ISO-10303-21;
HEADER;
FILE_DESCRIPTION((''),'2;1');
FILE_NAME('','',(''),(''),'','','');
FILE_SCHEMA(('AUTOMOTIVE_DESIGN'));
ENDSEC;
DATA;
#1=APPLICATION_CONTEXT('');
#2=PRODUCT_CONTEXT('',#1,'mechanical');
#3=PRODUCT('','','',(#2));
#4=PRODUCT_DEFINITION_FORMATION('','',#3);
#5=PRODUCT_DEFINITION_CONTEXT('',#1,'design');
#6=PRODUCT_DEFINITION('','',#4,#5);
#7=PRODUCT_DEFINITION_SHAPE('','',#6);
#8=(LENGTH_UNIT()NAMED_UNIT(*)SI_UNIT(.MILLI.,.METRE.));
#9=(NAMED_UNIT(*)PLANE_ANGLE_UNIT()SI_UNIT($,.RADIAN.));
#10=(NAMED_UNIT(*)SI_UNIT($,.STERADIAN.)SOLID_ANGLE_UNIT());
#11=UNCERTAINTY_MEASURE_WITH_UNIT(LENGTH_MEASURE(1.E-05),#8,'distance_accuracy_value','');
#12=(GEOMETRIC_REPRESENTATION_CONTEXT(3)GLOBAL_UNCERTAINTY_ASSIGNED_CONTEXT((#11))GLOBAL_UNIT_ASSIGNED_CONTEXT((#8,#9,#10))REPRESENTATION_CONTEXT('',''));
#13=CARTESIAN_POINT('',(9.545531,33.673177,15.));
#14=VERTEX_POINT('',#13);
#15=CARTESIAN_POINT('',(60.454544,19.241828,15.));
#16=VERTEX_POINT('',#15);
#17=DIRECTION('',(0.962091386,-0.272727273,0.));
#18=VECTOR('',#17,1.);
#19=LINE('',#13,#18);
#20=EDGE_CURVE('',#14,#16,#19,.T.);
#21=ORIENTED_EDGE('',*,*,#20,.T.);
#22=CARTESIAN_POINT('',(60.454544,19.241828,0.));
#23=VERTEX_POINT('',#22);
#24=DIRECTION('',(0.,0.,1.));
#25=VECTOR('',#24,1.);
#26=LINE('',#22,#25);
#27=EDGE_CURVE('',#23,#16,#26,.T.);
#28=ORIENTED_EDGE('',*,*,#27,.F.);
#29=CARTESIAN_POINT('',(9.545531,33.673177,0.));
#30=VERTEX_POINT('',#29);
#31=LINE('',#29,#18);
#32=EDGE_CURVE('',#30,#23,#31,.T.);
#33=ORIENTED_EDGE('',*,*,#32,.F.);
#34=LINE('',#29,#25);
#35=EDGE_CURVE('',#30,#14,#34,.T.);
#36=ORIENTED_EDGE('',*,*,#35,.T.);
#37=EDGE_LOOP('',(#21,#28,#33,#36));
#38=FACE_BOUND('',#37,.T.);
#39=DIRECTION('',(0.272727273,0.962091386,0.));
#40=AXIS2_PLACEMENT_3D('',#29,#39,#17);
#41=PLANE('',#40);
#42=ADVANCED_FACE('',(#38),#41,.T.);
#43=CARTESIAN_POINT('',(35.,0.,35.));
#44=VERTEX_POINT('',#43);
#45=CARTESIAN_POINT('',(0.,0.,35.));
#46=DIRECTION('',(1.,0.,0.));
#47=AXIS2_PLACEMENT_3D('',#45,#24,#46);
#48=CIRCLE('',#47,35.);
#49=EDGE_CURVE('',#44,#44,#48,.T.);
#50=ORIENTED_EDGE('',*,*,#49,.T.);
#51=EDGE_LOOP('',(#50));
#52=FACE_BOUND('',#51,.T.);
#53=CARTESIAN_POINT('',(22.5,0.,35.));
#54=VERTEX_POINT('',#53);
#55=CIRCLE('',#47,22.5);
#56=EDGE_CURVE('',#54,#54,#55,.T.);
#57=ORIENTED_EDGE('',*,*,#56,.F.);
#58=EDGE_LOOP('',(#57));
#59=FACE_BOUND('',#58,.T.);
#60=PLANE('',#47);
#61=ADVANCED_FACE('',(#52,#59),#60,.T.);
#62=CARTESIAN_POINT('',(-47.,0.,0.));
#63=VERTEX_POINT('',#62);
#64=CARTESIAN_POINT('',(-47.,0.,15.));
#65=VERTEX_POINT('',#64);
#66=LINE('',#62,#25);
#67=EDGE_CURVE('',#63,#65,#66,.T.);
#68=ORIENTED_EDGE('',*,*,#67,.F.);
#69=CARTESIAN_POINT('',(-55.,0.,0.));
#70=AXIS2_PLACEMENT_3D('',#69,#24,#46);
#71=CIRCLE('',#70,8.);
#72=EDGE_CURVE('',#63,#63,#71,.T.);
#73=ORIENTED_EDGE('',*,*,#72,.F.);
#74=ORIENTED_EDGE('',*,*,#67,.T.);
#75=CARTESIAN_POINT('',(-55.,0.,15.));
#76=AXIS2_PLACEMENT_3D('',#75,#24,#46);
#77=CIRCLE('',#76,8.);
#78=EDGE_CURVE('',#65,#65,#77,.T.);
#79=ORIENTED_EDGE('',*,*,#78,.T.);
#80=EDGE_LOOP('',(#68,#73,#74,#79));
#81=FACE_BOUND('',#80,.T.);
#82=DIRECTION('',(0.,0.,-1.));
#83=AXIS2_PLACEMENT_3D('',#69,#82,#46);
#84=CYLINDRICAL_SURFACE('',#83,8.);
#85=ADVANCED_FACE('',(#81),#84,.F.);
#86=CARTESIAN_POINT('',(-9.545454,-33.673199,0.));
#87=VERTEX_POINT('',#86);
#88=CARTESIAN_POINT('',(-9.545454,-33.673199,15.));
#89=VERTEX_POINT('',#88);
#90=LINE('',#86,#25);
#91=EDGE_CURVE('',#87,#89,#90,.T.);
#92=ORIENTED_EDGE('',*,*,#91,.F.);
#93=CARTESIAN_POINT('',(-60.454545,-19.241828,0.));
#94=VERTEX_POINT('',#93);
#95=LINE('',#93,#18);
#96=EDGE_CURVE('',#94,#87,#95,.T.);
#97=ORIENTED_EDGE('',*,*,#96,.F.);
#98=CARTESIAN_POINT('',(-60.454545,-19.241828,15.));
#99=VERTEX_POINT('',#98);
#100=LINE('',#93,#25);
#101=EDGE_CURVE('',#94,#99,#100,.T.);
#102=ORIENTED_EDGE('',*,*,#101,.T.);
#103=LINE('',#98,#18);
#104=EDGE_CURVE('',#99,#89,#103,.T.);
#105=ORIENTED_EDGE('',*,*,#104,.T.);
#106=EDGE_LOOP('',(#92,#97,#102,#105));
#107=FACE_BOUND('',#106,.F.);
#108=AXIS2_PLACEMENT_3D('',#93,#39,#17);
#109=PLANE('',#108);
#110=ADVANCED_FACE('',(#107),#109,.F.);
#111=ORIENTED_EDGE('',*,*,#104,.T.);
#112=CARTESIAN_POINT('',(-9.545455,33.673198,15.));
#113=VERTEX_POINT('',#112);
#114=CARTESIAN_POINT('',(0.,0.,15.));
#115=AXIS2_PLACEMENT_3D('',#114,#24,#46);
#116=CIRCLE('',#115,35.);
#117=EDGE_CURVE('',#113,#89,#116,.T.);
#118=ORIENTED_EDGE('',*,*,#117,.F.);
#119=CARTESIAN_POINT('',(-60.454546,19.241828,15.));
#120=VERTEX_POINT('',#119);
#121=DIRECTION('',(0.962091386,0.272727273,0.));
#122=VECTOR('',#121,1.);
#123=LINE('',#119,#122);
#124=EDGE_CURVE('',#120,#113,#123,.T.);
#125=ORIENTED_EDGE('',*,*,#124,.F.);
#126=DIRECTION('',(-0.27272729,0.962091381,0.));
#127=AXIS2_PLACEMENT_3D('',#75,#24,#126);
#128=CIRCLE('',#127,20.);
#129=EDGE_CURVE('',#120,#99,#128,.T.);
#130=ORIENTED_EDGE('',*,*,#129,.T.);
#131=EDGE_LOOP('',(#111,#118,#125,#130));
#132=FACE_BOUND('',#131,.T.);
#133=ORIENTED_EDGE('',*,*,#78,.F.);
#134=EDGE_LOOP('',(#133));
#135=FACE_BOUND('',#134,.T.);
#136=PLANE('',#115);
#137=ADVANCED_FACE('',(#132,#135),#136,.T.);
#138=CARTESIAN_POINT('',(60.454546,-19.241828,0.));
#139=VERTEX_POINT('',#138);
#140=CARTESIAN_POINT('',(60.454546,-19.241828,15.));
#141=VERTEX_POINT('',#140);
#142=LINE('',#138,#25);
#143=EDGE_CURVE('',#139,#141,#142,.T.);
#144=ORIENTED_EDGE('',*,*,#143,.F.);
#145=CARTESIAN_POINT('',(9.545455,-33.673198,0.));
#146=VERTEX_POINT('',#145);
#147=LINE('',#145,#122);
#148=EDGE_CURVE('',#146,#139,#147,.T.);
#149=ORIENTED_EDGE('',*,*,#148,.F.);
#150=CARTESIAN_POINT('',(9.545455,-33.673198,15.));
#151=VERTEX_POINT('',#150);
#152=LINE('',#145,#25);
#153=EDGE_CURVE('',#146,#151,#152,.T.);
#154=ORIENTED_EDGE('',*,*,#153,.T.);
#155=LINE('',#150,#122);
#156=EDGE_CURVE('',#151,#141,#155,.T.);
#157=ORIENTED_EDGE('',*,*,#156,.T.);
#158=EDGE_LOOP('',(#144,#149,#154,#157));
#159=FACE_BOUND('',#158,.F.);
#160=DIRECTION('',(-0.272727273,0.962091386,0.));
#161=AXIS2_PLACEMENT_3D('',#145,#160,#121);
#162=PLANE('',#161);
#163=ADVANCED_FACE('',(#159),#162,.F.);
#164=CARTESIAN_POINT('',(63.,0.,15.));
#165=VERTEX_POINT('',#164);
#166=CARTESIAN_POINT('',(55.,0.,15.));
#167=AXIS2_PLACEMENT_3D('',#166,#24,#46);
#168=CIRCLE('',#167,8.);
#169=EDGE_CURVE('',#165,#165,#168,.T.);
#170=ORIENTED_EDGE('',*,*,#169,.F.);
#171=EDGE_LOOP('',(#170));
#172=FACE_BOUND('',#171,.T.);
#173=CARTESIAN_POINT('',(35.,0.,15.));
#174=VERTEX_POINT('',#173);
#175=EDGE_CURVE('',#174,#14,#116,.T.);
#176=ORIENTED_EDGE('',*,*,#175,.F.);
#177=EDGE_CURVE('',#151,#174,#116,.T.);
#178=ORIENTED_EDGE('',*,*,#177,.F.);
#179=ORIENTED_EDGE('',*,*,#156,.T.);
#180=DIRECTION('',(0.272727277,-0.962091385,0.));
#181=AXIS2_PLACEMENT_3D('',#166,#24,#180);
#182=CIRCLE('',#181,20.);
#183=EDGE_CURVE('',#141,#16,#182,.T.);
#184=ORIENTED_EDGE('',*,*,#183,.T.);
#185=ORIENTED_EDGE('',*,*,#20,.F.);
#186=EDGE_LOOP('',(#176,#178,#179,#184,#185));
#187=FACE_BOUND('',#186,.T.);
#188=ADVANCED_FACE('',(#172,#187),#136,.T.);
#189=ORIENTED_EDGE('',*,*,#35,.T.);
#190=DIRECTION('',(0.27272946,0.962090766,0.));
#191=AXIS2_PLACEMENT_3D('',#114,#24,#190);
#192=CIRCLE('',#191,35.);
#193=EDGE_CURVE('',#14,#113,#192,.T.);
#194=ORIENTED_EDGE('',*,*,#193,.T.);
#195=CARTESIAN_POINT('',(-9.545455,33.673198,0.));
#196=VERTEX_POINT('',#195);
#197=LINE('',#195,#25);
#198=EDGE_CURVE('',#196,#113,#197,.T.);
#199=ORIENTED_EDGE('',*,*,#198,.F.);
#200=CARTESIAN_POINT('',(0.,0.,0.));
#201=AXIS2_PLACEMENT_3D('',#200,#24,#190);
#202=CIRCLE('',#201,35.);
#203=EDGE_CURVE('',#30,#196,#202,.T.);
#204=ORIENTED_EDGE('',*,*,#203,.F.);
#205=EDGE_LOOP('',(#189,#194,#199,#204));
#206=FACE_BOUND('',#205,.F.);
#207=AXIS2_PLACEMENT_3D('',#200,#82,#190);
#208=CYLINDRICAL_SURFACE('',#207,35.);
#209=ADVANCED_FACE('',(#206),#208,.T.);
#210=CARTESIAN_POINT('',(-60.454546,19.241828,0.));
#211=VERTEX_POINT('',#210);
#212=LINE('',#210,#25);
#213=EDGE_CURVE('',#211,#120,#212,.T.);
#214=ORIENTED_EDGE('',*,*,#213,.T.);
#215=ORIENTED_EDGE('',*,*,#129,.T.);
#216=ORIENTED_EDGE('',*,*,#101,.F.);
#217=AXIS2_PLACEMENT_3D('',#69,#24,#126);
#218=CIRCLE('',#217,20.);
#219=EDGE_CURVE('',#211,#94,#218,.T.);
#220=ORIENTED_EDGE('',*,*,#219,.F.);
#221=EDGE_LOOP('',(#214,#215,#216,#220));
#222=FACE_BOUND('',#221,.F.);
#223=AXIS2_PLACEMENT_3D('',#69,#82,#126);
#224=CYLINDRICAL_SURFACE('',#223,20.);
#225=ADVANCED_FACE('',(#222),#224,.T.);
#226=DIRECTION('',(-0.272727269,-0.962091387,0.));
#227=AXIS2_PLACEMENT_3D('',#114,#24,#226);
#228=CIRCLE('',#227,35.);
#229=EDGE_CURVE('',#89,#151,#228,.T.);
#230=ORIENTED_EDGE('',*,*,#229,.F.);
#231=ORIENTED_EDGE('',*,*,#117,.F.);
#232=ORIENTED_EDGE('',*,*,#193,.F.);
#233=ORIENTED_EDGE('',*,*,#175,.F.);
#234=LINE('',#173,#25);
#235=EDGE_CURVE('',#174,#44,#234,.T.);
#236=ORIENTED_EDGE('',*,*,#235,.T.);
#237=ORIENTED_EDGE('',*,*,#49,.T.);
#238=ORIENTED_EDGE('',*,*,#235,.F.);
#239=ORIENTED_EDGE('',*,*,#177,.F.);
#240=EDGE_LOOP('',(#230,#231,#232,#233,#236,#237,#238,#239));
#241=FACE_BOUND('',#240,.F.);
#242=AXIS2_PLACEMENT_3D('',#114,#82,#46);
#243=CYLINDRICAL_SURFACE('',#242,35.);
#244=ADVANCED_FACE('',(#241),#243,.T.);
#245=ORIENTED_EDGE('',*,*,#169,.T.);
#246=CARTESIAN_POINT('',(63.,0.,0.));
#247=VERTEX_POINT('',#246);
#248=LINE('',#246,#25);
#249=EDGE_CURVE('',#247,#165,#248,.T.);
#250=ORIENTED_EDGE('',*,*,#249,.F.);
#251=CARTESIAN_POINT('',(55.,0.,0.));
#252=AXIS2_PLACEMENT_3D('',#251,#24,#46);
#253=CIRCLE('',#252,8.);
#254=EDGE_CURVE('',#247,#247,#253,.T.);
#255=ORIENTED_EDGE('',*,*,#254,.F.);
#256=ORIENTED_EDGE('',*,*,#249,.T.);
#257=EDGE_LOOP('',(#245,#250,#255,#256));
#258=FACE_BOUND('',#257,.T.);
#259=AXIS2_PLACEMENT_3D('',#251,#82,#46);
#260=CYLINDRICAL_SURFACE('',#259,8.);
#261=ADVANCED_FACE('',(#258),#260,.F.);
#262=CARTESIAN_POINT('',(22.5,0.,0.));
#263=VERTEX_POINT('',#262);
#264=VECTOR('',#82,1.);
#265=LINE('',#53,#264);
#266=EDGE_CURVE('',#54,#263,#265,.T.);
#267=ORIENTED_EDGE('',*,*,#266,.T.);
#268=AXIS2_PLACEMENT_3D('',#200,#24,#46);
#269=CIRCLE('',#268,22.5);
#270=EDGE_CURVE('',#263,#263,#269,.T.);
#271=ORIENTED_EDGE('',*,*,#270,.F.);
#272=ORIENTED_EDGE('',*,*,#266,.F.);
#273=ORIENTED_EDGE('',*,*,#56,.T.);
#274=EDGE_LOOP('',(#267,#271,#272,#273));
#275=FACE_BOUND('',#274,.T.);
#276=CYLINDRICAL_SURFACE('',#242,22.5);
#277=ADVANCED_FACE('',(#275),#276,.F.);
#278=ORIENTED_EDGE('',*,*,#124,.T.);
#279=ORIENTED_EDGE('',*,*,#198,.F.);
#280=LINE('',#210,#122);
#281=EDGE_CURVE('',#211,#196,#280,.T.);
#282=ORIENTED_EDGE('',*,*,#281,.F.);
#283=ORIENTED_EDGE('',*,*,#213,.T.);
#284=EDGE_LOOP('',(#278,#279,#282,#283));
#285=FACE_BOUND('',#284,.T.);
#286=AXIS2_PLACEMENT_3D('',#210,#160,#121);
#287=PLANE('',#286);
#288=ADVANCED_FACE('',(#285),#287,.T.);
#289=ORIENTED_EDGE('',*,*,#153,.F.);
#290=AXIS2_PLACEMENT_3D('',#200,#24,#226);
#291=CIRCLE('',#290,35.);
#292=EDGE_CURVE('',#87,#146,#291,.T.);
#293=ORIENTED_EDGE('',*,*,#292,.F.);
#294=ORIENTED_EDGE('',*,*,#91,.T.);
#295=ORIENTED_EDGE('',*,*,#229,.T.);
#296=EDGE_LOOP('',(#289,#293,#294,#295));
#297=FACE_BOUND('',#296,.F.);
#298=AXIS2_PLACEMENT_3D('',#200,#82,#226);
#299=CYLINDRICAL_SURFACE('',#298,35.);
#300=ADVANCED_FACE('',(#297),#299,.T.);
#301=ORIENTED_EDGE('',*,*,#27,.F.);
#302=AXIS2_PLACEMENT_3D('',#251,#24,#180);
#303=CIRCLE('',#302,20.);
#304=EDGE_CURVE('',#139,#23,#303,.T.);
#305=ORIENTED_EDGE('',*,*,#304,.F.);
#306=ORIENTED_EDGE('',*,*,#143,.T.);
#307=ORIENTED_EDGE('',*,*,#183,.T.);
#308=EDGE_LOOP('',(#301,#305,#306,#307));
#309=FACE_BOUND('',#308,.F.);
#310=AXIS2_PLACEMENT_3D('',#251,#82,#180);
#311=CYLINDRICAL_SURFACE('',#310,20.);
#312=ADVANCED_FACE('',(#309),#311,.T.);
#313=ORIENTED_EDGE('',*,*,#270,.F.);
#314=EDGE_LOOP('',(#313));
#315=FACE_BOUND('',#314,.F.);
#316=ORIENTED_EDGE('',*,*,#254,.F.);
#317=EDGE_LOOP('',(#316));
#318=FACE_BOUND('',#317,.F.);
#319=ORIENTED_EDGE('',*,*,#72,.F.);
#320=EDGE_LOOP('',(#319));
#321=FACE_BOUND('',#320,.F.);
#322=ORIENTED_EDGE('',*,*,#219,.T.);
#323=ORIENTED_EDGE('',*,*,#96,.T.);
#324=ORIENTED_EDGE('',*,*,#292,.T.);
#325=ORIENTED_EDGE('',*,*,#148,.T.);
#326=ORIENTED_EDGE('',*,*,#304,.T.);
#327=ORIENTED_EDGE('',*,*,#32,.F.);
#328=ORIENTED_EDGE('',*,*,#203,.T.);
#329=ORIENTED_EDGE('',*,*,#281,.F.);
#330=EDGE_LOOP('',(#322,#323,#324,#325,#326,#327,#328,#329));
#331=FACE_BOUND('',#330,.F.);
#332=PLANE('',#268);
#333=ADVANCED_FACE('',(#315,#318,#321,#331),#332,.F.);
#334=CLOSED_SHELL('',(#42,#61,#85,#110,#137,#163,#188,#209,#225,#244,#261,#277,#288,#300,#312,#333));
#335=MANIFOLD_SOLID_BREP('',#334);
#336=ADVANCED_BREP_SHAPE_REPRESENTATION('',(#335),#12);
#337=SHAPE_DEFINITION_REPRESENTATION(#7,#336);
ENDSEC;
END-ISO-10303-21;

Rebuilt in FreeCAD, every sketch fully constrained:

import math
import FreeCAD as App
import Part
import Sketcher
from FreeCAD import Vector

doc = App.newDocument("Part")
params = doc.addObject("Spreadsheet::Sheet", "Params")
for row, (alias, value) in enumerate([
    ("sketch1_diameter", "16 mm"),
    ("sketch1_diameter2", "45 mm"),
    ("sketch1_radius", "35 mm"),
    ("sketch1_radius2", "20 mm"),
    ("pad1_length", "15 mm"),
    ("sketch2_diameter", "70 mm"),
    ("sketch2_diameter2", "45 mm"),
    ("pad2_length", "20 mm"),
], start=1):
    params.set(f"A{row}", alias)
    params.set(f"B{row}", "=" + value)
    params.setAlias(f"B{row}", alias)

body = doc.addObject("PartDesign::Body", "Body")

# Sketch on XY plane
sketch1 = body.newObject("Sketcher::SketchObject", "Sketch")
sketch1.AttachmentSupport = (doc.getObject("XY_Plane"), [""])
sketch1.MapMode = "FlatFace"
sketch1.addGeometry(Part.ArcOfCircle(Part.Circle(Vector(0, 0, 0), Vector(0, 0, 1), 35), math.radians(74), math.radians(106)), False)
sketch1.addGeometry(Part.LineSegment(Vector(-10, 34, 0), Vector(-60, 19, 0)), False)
sketch1.addGeometry(Part.ArcOfCircle(Part.Circle(Vector(-55, 0, 0), Vector(0, 0, 1), 20), math.radians(106), math.radians(254)), False)
sketch1.addGeometry(Part.LineSegment(Vector(-60, -19, 0), Vector(-10, -34, 0)), False)
sketch1.addGeometry(Part.ArcOfCircle(Part.Circle(Vector(0, 0, 0), Vector(0, 0, 1), 35), math.radians(-106), math.radians(-74)), False)
sketch1.addGeometry(Part.LineSegment(Vector(10, -34, 0), Vector(60, -19, 0)), False)
sketch1.addGeometry(Part.ArcOfCircle(Part.Circle(Vector(55, 0, 0), Vector(0, 0, 1), 20), math.radians(-74), math.radians(74)), False)
sketch1.addGeometry(Part.LineSegment(Vector(60, 19, 0), Vector(10, 34, 0)), False)
sketch1.addGeometry(Part.Circle(Vector(-55, 0, 0), Vector(0, 0, 1), 8), False)
sketch1.addGeometry(Part.Circle(Vector(0, 0, 0), Vector(0, 0, 1), 22), False)
sketch1.addGeometry(Part.Circle(Vector(55, 0, 0), Vector(0, 0, 1), 8), False)
sketch1.addConstraint(Sketcher.Constraint("Tangent", 0, 2, 1, 1))
sketch1.addConstraint(Sketcher.Constraint("Tangent", 1, 2, 2, 1))
sketch1.addConstraint(Sketcher.Constraint("Tangent", 2, 2, 3, 1))
sketch1.addConstraint(Sketcher.Constraint("Tangent", 3, 2, 4, 1))
sketch1.addConstraint(Sketcher.Constraint("Tangent", 4, 2, 5, 1))
sketch1.addConstraint(Sketcher.Constraint("Tangent", 5, 2, 6, 1))
sketch1.addConstraint(Sketcher.Constraint("Tangent", 6, 2, 7, 1))
sketch1.addConstraint(Sketcher.Constraint("Coincident", 7, 2, 0, 1))
sketch1.addConstraint(Sketcher.Constraint("Coincident", 0, 3, -1, 1))
sketch1.addConstraint(Sketcher.Constraint("Coincident", 4, 3, -1, 1))
sketch1.addConstraint(Sketcher.Constraint("Coincident", 9, 3, -1, 1))
sketch1.addConstraint(Sketcher.Constraint("Coincident", 8, 3, 2, 3))
sketch1.addConstraint(Sketcher.Constraint("Coincident", 10, 3, 6, 3))
sketch1.addConstraint(Sketcher.Constraint("Equal", 0, 4))
sketch1.addConstraint(Sketcher.Constraint("Equal", 2, 6))
sketch1.addConstraint(Sketcher.Constraint("Equal", 8, 10))
sketch1.addConstraint(Sketcher.Constraint("Symmetric", 2, 3, 6, 3, -1, 1))
sketch1.addConstraint(Sketcher.Constraint("PointOnObject", 2, 3, -1))
sketch1.addConstraint(Sketcher.Constraint("Diameter", 8, 16.0))
sketch1.addConstraint(Sketcher.Constraint("Diameter", 9, 45.0))
sketch1.addConstraint(Sketcher.Constraint("Radius", 0, 35.0))
sketch1.addConstraint(Sketcher.Constraint("Radius", 2, 20.0))
sketch1.addConstraint(Sketcher.Constraint("DistanceX", 2, 3, -1, 1, 55.0))
sketch1.addConstraint(Sketcher.Constraint("DistanceX", -1, 1, 7, 2, 9.545531))
sketch1.setExpression("Constraints[18]", "Params.sketch1_diameter")
sketch1.setExpression("Constraints[19]", "Params.sketch1_diameter2")
sketch1.setExpression("Constraints[20]", "Params.sketch1_radius")
sketch1.setExpression("Constraints[21]", "Params.sketch1_radius2")
pad1 = body.newObject("PartDesign::Pad", "Pad")
pad1.Profile = sketch1
pad1.setExpression("Length", "Params.pad1_length")

# Sketch on XY plane
sketch2 = body.newObject("Sketcher::SketchObject", "Sketch001")
sketch2.AttachmentSupport = (doc.getObject("XY_Plane"), [""])
sketch2.MapMode = "FlatFace"
sketch2.AttachmentOffset = App.Placement(Vector(0, 0, 15), App.Rotation())
sketch2.addGeometry(Part.Circle(Vector(0, 0, 0), Vector(0, 0, 1), 35), False)
sketch2.addGeometry(Part.Circle(Vector(0, 0, 0), Vector(0, 0, 1), 22), False)
sketch2.addConstraint(Sketcher.Constraint("Coincident", 0, 3, -1, 1))
sketch2.addConstraint(Sketcher.Constraint("Coincident", 1, 3, -1, 1))
sketch2.addConstraint(Sketcher.Constraint("Diameter", 0, 70.0))
sketch2.addConstraint(Sketcher.Constraint("Diameter", 1, 45.0))
sketch2.setExpression("Constraints[2]", "Params.sketch2_diameter")
sketch2.setExpression("Constraints[3]", "Params.sketch2_diameter2")
pad2 = body.newObject("PartDesign::Pad", "Pad001")
pad2.Profile = sketch2
pad2.setExpression("Length", "Params.pad2_length")

doc.recompute()
